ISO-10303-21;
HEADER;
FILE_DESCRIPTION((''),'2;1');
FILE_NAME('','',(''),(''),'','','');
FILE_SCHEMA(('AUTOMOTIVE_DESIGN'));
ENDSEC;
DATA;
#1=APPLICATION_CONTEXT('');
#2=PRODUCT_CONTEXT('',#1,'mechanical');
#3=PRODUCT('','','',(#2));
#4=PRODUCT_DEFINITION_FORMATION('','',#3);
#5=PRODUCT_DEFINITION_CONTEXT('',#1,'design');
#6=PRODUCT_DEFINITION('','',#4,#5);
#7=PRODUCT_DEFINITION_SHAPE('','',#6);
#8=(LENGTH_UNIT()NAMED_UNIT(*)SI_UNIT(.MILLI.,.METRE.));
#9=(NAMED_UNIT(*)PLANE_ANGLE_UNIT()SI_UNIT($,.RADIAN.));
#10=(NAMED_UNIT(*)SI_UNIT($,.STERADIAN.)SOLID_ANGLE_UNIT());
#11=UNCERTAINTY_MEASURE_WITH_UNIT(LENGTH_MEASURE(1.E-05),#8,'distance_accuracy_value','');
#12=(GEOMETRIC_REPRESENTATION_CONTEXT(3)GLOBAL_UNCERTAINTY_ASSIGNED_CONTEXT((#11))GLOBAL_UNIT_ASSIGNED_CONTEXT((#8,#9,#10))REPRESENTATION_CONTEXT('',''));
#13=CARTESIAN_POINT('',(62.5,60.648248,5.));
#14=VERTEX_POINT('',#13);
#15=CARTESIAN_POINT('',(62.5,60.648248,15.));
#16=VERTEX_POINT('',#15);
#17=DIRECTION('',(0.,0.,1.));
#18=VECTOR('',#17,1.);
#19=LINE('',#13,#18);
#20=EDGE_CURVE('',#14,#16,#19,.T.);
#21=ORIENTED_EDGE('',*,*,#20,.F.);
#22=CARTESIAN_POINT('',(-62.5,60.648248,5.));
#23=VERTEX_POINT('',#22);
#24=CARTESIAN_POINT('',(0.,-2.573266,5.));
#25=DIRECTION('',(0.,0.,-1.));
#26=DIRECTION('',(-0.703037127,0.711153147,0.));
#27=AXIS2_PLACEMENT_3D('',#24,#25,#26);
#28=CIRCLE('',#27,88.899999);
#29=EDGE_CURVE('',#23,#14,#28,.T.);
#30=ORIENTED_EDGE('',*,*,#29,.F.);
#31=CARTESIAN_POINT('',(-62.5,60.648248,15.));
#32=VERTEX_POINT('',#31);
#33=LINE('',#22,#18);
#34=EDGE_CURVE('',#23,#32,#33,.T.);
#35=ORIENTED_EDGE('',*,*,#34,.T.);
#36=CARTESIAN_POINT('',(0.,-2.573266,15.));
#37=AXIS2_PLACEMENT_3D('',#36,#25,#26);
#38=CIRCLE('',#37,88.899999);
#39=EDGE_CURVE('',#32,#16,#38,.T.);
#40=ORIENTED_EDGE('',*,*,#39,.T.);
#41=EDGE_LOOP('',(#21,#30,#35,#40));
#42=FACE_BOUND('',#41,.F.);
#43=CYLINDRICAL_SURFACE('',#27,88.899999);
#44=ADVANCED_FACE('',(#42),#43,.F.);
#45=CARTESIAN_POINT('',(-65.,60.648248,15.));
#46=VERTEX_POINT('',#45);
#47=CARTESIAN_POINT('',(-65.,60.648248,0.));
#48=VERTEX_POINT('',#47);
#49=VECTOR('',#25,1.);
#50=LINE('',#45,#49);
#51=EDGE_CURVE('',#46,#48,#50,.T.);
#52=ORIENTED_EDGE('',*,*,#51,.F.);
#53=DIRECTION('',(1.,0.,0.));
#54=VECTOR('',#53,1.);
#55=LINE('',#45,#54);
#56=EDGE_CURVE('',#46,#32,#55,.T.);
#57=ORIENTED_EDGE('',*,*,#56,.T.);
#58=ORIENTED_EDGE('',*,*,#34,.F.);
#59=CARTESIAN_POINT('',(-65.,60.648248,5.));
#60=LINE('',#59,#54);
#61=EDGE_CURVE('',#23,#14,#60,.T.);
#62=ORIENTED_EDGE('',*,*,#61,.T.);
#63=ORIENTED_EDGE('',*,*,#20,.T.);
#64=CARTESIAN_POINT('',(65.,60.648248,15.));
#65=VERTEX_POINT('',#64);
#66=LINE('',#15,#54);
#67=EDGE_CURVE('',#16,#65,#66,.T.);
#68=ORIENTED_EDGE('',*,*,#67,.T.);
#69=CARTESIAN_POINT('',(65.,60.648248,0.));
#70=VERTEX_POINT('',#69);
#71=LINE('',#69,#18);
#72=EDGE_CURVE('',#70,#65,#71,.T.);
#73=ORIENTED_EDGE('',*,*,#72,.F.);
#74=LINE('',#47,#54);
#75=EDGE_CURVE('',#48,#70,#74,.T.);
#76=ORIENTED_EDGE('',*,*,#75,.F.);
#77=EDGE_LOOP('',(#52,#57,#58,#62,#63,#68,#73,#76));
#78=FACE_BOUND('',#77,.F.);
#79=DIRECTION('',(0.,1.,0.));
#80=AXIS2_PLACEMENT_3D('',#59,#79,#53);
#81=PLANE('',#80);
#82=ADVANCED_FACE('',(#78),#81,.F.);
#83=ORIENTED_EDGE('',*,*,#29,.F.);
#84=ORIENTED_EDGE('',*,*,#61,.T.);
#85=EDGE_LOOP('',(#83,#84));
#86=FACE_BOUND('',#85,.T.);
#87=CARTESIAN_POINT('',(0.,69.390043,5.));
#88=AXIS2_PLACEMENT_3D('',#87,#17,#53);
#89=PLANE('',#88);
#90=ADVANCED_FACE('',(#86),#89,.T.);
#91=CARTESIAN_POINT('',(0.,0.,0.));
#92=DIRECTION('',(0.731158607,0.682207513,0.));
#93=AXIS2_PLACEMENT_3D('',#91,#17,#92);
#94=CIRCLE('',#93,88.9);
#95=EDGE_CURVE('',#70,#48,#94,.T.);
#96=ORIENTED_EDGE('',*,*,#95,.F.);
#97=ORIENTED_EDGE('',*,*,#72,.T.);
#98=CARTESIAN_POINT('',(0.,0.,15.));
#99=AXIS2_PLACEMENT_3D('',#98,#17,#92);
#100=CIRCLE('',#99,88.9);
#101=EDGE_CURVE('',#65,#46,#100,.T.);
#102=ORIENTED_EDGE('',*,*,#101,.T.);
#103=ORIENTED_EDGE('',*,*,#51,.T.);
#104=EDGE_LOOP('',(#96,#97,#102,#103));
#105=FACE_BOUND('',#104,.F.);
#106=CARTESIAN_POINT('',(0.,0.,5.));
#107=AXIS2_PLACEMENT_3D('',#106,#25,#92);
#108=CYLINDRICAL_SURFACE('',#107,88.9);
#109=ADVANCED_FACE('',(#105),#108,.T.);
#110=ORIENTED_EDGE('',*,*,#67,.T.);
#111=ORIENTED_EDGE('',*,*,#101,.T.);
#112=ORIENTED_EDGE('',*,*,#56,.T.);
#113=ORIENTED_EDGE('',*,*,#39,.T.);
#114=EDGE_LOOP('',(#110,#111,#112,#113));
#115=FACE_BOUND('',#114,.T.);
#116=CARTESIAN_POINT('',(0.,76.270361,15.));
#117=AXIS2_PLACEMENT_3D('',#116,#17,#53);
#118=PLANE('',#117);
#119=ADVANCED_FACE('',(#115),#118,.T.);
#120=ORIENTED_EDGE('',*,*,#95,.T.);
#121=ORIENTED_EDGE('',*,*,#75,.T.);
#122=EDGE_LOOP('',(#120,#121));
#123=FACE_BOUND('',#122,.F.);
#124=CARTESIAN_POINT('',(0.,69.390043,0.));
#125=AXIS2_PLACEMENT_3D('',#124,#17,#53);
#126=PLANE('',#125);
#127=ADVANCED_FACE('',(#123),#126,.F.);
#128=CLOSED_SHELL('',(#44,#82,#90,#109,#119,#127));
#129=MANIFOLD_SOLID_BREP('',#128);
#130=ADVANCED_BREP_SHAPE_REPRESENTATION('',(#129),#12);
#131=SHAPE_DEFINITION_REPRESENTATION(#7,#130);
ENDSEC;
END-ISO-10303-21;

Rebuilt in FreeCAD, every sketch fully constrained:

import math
import FreeCAD as App
import Part
import Sketcher

V = App.Vector

doc = App.newDocument("Part")
body = doc.addObject("PartDesign::Body", "Body")

# Sketch on XY plane
sketch1 = doc.addObject("Sketcher::SketchObject", "Sketch")
body.addObject(sketch1)
sketch1.AttachmentSupport = (doc.XY_Plane, [""])
sketch1.MapMode = "FlatFace"
sketch1.addGeometry([
    Part.LineSegment(V(-65, 61, 0), V(65, 61, 0)),
    Part.ArcOfCircle(Part.Circle(V(0, 0, 0), V(0, 0, 1), 89), math.radians(43), math.radians(137)),
], False)
sketch1.addConstraint([
    Sketcher.Constraint("Coincident", 0, 1, 1, 2),
    Sketcher.Constraint("Coincident", 1, 1, 0, 2),
    Sketcher.Constraint("Horizontal", 0),
    Sketcher.Constraint("Coincident", 1, 3, -1, 1),
    Sketcher.Constraint("Radius", 1, 88.9),
    Sketcher.Constraint("DistanceX", 0, 1, 0, 2, 130.0),
])
pad1 = doc.addObject("PartDesign::Pad", "Pad")
body.addObject(pad1)
pad1.Profile = sketch1
pad1.Length = 5

# Sketch on XY plane
sketch2 = doc.addObject("Sketcher::SketchObject", "Sketch001")
body.addObject(sketch2)
sketch2.AttachmentSupport = (doc.XY_Plane, [""])
sketch2.MapMode = "FlatFace"
sketch2.AttachmentOffset = App.Placement(V(0, 0, 5), App.Rotation())
sketch2.addGeometry([
    Part.ArcOfCircle(Part.Circle(V(0, -2.6, 0), V(0, 0, 1), 88.9), math.radians(45), math.radians(135)),
    Part.LineSegment(V(62.5, 60.6, 0), V(65, 60.6, 0)),
    Part.ArcOfCircle(Part.Circle(V(0, 0, 0), V(0, 0, 1), 88.9), math.radians(43), math.radians(137)),
    Part.LineSegment(V(-65, 60.6, 0), V(-62.5, 60.6, 0)),
], False)
sketch2.addConstraint([
    Sketcher.Constraint("Coincident", 0, 1, 1, 1),
    Sketcher.Constraint("Coincident", 1, 2, 2, 1),
    Sketcher.Constraint("Coincident", 2, 2, 3, 1),
    Sketcher.Constraint("Coincident", 3, 2, 0, 2),
    Sketcher.Constraint("Horizontal", 1),
    Sketcher.Constraint("Horizontal", 3),
    Sketcher.Constraint("Coincident", 2, 3, -1, 1),
    Sketcher.Constraint("Equal", 0, 2),
    Sketcher.Constraint("Symmetric", 0, 1, 3, 2, -2),
    Sketcher.Constraint("Radius", 0, 88.899999),
    Sketcher.Constraint("DistanceX", 1, 1, 1, 2, 2.5),
    Sketcher.Constraint("DistanceX", -1, 1, 1, 2, 65.0),
])
pad2 = doc.addObject("PartDesign::Pad", "Pad001")
body.addObject(pad2)
pad2.Profile = sketch2
pad2.Length = 10

doc.recompute()
